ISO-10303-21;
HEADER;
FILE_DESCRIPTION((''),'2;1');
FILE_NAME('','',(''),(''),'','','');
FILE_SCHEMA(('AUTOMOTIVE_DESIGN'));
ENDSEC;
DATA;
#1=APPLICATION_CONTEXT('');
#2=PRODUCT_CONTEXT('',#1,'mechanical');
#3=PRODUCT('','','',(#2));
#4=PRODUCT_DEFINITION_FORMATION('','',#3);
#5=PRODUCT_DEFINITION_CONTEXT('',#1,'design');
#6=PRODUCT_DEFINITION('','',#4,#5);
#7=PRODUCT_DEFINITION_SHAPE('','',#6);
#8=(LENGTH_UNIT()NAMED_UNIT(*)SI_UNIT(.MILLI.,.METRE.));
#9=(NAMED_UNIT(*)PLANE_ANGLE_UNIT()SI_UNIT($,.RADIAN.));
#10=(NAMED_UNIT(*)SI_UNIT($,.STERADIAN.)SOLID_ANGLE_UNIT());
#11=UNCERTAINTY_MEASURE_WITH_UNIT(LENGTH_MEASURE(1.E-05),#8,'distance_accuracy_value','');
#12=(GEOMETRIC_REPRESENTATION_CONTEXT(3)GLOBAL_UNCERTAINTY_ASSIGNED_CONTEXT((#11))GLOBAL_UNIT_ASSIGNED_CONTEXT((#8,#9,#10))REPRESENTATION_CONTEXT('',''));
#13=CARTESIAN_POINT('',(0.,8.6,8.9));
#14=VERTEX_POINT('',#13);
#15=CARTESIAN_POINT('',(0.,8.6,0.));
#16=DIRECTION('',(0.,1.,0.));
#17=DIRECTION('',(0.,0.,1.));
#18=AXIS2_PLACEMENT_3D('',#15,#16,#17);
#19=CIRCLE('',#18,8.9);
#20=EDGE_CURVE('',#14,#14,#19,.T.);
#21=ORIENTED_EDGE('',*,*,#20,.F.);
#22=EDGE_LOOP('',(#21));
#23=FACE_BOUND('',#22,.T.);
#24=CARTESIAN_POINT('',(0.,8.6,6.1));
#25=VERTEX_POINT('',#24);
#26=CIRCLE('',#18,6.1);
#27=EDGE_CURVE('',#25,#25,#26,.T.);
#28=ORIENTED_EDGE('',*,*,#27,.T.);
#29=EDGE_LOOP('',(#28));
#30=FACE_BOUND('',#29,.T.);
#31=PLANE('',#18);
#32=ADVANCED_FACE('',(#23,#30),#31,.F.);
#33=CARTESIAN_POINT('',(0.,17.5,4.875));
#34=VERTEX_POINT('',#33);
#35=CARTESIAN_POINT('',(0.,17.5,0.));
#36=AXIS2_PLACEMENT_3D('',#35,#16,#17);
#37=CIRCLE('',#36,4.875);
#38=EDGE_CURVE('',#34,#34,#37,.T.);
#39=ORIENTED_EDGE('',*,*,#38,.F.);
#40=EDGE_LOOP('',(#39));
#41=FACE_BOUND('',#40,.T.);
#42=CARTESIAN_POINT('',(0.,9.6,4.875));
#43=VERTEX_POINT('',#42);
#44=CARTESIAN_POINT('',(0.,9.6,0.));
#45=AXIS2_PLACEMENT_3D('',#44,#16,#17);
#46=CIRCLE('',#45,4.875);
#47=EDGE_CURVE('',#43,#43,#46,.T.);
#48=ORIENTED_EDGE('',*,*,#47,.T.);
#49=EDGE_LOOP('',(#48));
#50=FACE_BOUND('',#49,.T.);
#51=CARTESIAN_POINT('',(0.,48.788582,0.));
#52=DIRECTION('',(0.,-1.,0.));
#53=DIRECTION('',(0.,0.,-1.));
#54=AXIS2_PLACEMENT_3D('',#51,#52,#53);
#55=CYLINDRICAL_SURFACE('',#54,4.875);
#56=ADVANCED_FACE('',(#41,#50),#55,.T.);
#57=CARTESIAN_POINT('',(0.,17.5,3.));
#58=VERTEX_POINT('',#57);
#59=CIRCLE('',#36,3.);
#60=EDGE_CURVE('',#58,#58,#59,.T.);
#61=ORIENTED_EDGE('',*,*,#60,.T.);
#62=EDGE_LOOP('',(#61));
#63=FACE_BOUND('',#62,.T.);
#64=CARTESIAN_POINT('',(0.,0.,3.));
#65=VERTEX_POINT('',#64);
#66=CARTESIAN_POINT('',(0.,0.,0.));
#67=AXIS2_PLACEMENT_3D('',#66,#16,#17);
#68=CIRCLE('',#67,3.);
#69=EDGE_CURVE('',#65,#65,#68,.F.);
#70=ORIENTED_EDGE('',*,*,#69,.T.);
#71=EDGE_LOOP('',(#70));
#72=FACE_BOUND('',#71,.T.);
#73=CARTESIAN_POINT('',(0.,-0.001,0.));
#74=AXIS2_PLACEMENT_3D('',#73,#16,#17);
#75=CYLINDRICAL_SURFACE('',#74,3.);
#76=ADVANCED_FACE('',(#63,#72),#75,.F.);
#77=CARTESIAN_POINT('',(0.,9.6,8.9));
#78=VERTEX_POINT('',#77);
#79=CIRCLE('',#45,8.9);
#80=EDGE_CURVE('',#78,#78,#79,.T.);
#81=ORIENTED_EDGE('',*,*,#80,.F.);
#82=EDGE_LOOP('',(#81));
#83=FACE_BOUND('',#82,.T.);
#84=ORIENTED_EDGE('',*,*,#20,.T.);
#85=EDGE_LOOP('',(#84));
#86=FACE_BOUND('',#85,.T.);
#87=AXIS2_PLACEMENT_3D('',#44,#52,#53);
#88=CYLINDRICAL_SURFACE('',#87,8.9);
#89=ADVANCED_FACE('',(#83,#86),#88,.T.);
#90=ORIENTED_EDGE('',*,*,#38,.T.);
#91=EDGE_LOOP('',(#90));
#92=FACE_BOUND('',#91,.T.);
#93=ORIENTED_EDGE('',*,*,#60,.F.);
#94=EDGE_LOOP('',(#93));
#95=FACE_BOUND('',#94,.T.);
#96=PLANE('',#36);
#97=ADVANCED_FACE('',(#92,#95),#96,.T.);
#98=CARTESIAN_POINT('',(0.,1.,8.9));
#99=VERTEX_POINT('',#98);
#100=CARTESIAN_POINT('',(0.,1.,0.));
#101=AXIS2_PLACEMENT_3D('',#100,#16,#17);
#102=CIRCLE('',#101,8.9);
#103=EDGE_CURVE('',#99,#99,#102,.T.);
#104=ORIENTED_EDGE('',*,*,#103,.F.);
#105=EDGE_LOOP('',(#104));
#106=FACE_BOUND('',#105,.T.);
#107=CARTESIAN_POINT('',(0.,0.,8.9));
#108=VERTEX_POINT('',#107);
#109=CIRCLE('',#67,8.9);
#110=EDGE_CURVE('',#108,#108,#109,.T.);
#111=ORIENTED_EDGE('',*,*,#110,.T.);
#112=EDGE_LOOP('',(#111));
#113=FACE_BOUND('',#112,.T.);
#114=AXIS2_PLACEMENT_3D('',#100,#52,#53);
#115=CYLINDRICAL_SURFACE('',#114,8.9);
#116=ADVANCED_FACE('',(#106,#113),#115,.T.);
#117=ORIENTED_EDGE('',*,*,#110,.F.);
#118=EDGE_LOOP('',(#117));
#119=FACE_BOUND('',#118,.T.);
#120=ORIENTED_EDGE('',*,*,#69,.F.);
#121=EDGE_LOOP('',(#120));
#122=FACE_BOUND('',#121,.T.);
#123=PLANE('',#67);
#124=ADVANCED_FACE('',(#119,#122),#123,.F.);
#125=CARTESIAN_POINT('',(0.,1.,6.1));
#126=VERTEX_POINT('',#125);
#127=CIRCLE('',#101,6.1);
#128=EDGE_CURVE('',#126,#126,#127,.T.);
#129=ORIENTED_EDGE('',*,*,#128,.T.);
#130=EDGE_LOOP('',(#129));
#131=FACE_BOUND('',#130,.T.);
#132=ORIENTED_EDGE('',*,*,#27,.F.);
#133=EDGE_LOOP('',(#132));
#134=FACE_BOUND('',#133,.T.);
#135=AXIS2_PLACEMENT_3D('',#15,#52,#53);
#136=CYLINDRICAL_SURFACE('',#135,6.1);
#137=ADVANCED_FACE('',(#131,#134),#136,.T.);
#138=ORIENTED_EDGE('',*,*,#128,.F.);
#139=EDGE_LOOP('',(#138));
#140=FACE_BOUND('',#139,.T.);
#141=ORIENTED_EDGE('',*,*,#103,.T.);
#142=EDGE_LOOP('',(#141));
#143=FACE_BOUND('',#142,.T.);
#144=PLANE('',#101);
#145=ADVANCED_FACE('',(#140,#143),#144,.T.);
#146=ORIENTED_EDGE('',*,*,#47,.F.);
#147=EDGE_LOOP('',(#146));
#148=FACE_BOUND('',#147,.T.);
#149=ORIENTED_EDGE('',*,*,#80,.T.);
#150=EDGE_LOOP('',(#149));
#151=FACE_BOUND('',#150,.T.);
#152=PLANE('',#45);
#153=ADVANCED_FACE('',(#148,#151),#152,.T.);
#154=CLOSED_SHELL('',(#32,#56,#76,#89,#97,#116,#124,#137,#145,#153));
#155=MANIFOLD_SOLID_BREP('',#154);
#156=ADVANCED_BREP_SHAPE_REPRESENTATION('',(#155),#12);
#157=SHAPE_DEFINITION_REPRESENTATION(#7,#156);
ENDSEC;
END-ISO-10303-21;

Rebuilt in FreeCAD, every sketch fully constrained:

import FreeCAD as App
import Part
import Sketcher

V = App.Vector

doc = App.newDocument("Part")
body = doc.addObject("PartDesign::Body", "Body")

sketch1 = doc.addObject("Sketcher::SketchObject", "Sketch")
body.addObject(sketch1)
sketch1.AttachmentSupport = (doc.XZ_Plane, [""])
sketch1.MapMode = "FlatFace"
sketch1.addGeometry(Part.Circle(V(0, 0, 0), V(0, 0, 1), 8.9), False)
sketch1.addConstraint(Sketcher.Constraint("Coincident", 0, 3, -1, 1))
sketch1.addConstraint(Sketcher.Constraint("Diameter", 0, 17.8))
pad1 = doc.addObject("PartDesign::Pad", "Pad")
body.addObject(pad1)
pad1.Profile = sketch1
pad1.Length = 1
pad1.Reversed = True

sketch2 = doc.addObject("Sketcher::SketchObject", "Sketch001")
body.addObject(sketch2)
sketch2.AttachmentSupport = (doc.XZ_Plane, [""])
sketch2.MapMode = "FlatFace"
sketch2.AttachmentOffset = App.Placement(V(0, 0, -1), App.Rotation())
sketch2.addGeometry(Part.Circle(V(0, 0, 0), V(0, 0, 1), 6.1), False)
sketch2.addConstraint(Sketcher.Constraint("Coincident", 0, 3, -1, 1))
sketch2.addConstraint(Sketcher.Constraint("Diameter", 0, 12.2))
pad2 = doc.addObject("PartDesign::Pad", "Pad001")
body.addObject(pad2)
pad2.Profile = sketch2
pad2.Length = 7.6
pad2.Reversed = True

sketch3 = doc.addObject("Sketcher::SketchObject", "Sketch002")
body.addObject(sketch3)
sketch3.AttachmentSupport = (doc.XZ_Plane, [""])
sketch3.MapMode = "FlatFace"
sketch3.AttachmentOffset = App.Placement(V(0, 0, -8.6), App.Rotation())
sketch3.addGeometry(Part.Circle(V(0, 0, 0), V(0, 0, 1), 8.9), False)
sketch3.addConstraint(Sketcher.Constraint("Coincident", 0, 3, -1, 1))
sketch3.addConstraint(Sketcher.Constraint("Diameter", 0, 17.8))
pad3 = doc.addObject("PartDesign::Pad", "Pad002")
body.addObject(pad3)
pad3.Profile = sketch3
pad3.Length = 1
pad3.Reversed = True

sketch4 = doc.addObject("Sketcher::SketchObject", "Sketch003")
body.addObject(sketch4)
sketch4.AttachmentSupport = (doc.XZ_Plane, [""])
sketch4.MapMode = "FlatFace"
sketch4.AttachmentOffset = App.Placement(V(0, 0, -9.6), App.Rotation())
sketch4.addGeometry(Part.Circle(V(0, 0, 0), V(0, 0, 1), 4.875), False)
sketch4.addConstraint(Sketcher.Constraint("Coincident", 0, 3, -1, 1))
sketch4.addConstraint(Sketcher.Constraint("Diameter", 0, 9.75))
pad4 = doc.addObject("PartDesign::Pad", "Pad003")
body.addObject(pad4)
pad4.Profile = sketch4
pad4.Length = 7.9
pad4.Reversed = True

sketch5 = doc.addObject("Sketcher::SketchObject", "Sketch004")
body.addObject(sketch5)
sketch5.AttachmentSupport = (doc.XZ_Plane, [""])
sketch5.MapMode = "FlatFace"
sketch5.AttachmentOffset = App.Placement(V(0, 0, -17.5), App.Rotation())
sketch5.addGeometry(Part.Circle(V(0, 0, 0), V(0, 0, 1), 3), False)
sketch5.addConstraint(Sketcher.Constraint("Coincident", 0, 3, -1, 1))
sketch5.addConstraint(Sketcher.Constraint("Diameter", 0, 6.0))
pocket1 = doc.addObject("PartDesign::Pocket", "Pocket")
body.addObject(pocket1)
pocket1.Profile = sketch5
pocket1.Type = "UpToFirst"
pocket1.Reversed = True

doc.recompute()
